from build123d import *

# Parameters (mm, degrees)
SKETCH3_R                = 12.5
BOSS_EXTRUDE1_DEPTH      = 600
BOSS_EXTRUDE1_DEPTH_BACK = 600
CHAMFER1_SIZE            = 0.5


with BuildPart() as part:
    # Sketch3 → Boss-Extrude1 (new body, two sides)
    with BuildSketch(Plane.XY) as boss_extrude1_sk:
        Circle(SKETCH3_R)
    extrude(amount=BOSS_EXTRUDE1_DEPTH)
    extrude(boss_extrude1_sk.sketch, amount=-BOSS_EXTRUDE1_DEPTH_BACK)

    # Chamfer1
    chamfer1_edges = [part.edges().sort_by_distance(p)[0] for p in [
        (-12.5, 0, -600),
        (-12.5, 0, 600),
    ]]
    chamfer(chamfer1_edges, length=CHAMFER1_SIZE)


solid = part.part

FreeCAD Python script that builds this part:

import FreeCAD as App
import Part
import Sketcher
from FreeCAD import Vector
Q = App.Units.Quantity


def edges_at(feature, points):
    """Names of the edges that pass closest to the given points."""
    edges = feature.Shape.Edges
    near = lambda p: min(range(len(edges)), key=lambda i: edges[i].distToShape(Part.Vertex(*p))[0])
    return sorted({f"Edge{near(p) + 1}" for p in points})

doc = App.newDocument("Part")
body = doc.addObject("PartDesign::Body", "Body")

sketch1 = body.newObject("Sketcher::SketchObject", "Sketch")
sketch1.AttachmentSupport = (doc.getObject("XY_Plane"), [""])
sketch1.MapMode = "FlatFace"
sketch1.addGeometry(Part.Circle(Vector(0, 0, 0), Vector(0, 0, 1), 12), False)
sketch1.addConstraint([
    Sketcher.Constraint("Coincident", 0, 3, -1, 1),
    Sketcher.Constraint("Diameter", 0, Q("25 mm")),
])
pad1 = body.newObject("PartDesign::Pad", "Pad")
pad1.Profile = sketch1
pad1.Type = "TwoLengths"
pad1.Length = 600
pad1.Length2 = 600
doc.recompute()

chamfer = body.newObject("PartDesign::Chamfer", "Chamfer")
chamfer.Base = (pad1, edges_at(pad1, [(-12.5, 0, -600), (-12.5, 0, 600)]))
chamfer.Size = 0.5

doc.recompute()
